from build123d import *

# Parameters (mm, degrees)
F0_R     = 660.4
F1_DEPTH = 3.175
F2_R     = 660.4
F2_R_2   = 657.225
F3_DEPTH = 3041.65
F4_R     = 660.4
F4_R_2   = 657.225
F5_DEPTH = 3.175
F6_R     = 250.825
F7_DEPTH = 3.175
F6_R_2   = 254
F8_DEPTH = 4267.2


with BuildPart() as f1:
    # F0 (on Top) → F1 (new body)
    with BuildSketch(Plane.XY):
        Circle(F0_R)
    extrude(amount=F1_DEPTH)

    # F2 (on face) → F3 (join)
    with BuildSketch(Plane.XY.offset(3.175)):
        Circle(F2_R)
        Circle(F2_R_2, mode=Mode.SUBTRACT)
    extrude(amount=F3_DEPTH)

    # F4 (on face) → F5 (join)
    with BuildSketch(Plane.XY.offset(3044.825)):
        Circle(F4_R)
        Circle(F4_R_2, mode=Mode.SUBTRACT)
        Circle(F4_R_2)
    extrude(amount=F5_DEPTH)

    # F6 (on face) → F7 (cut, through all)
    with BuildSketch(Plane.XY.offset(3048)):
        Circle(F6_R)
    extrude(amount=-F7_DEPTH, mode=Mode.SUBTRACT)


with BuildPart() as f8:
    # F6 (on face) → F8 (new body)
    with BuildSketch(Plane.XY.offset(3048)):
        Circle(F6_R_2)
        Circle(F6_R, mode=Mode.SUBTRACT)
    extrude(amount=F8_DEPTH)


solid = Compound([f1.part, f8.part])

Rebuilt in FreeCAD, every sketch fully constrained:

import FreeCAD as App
import Part
import Sketcher
from FreeCAD import Vector
Q = App.Units.Quantity

doc = App.newDocument("Part")
body = doc.addObject("PartDesign::Body", "Body")

sketch1 = doc.addObject("Sketcher::SketchObject", "Sketch")
body.addObject(sketch1)
sketch1.AttachmentSupport = (doc.XY_Plane, [""])
sketch1.MapMode = "FlatFace"
sketch1.addGeometry(Part.Circle(Vector(0, 0, 0), Vector(0, 0, 1), 660), False)
sketch1.addConstraint([
    Sketcher.Constraint("Coincident", 0, 3, -1, 1),
    Sketcher.Constraint("Diameter", 0, Q("52 in")),
])
pad1 = doc.addObject("PartDesign::Pad", "Pad")
body.addObject(pad1)
pad1.Profile = sketch1
pad1.Length = Q("0.125 in")

sketch2 = doc.addObject("Sketcher::SketchObject", "Sketch001")
body.addObject(sketch2)
sketch2.AttachmentSupport = (doc.XY_Plane, [""])
sketch2.MapMode = "FlatFace"
sketch2.AttachmentOffset = App.Placement(Vector(0, 0, 0.125 * 25.4), App.Rotation())
sketch2.addGeometry([
    Part.Circle(Vector(0, 0, 0), Vector(0, 0, 1), 660),
    Part.Circle(Vector(0, 0, 0), Vector(0, 0, 1), 657),
], False)
sketch2.addConstraint([
    Sketcher.Constraint("Coincident", 0, 3, -1, 1),
    Sketcher.Constraint("Coincident", 1, 3, -1, 1),
    Sketcher.Constraint("Diameter", 0, Q("52 in")),
    Sketcher.Constraint("Diameter", 1, Q("51.75 in")),
])
pad2 = doc.addObject("PartDesign::Pad", "Pad001")
body.addObject(pad2)
pad2.Profile = sketch2
pad2.Length = Q("119.75 in")

sketch3 = doc.addObject("Sketcher::SketchObject", "Sketch002")
body.addObject(sketch3)
sketch3.AttachmentSupport = (doc.XY_Plane, [""])
sketch3.MapMode = "FlatFace"
sketch3.AttachmentOffset = App.Placement(Vector(0, 0, 119.875 * 25.4), App.Rotation())
sketch3.addGeometry(Part.Circle(Vector(0, 0, 0), Vector(0, 0, 1), 660), False)
sketch3.addConstraint([
    Sketcher.Constraint("Coincident", 0, 3, -1, 1),
    Sketcher.Constraint("Diameter", 0, Q("52 in")),
])
pad3 = doc.addObject("PartDesign::Pad", "Pad002")
body.addObject(pad3)
pad3.Profile = sketch3
pad3.Length = Q("0.125 in")

sketch4 = doc.addObject("Sketcher::SketchObject", "Sketch003")
body.addObject(sketch4)
sketch4.AttachmentSupport = (doc.XY_Plane, [""])
sketch4.MapMode = "FlatFace"
sketch4.AttachmentOffset = App.Placement(Vector(0, 0, 120 * 25.4), App.Rotation())
sketch4.addGeometry(Part.Circle(Vector(0, 0, 0), Vector(0, 0, 1), 251), False)
sketch4.addConstraint([
    Sketcher.Constraint("Coincident", 0, 3, -1, 1),
    Sketcher.Constraint("Diameter", 0, Q("19.75 in")),
])
pocket1 = doc.addObject("PartDesign::Pocket", "Pocket")
body.addObject(pocket1)
pocket1.Profile = sketch4
pocket1.Length = Q("0.125 in")
body2 = doc.addObject("PartDesign::Body", "Body001")

sketch5 = doc.addObject("Sketcher::SketchObject", "Sketch004")
body2.addObject(sketch5)
sketch5.AttachmentSupport = (doc.getObject("XY_Plane001"), [""])
sketch5.MapMode = "FlatFace"
sketch5.AttachmentOffset = App.Placement(Vector(0, 0, 120 * 25.4), App.Rotation())
sketch5.addGeometry([
    Part.Circle(Vector(0, 0, 0), Vector(0, 0, 1), 254),
    Part.Circle(Vector(0, 0, 0), Vector(0, 0, 1), 251),
], False)
sketch5.addConstraint([
    Sketcher.Constraint("Coincident", 0, 3, -1, 1),
    Sketcher.Constraint("Coincident", 1, 3, -1, 1),
    Sketcher.Constraint("Diameter", 0, Q("20 in")),
    Sketcher.Constraint("Diameter", 1, Q("19.75 in")),
])
pad4 = doc.addObject("PartDesign::Pad", "Pad003")
body2.addObject(pad4)
pad4.Profile = sketch5
pad4.Length = Q("168 in")

doc.recompute()
